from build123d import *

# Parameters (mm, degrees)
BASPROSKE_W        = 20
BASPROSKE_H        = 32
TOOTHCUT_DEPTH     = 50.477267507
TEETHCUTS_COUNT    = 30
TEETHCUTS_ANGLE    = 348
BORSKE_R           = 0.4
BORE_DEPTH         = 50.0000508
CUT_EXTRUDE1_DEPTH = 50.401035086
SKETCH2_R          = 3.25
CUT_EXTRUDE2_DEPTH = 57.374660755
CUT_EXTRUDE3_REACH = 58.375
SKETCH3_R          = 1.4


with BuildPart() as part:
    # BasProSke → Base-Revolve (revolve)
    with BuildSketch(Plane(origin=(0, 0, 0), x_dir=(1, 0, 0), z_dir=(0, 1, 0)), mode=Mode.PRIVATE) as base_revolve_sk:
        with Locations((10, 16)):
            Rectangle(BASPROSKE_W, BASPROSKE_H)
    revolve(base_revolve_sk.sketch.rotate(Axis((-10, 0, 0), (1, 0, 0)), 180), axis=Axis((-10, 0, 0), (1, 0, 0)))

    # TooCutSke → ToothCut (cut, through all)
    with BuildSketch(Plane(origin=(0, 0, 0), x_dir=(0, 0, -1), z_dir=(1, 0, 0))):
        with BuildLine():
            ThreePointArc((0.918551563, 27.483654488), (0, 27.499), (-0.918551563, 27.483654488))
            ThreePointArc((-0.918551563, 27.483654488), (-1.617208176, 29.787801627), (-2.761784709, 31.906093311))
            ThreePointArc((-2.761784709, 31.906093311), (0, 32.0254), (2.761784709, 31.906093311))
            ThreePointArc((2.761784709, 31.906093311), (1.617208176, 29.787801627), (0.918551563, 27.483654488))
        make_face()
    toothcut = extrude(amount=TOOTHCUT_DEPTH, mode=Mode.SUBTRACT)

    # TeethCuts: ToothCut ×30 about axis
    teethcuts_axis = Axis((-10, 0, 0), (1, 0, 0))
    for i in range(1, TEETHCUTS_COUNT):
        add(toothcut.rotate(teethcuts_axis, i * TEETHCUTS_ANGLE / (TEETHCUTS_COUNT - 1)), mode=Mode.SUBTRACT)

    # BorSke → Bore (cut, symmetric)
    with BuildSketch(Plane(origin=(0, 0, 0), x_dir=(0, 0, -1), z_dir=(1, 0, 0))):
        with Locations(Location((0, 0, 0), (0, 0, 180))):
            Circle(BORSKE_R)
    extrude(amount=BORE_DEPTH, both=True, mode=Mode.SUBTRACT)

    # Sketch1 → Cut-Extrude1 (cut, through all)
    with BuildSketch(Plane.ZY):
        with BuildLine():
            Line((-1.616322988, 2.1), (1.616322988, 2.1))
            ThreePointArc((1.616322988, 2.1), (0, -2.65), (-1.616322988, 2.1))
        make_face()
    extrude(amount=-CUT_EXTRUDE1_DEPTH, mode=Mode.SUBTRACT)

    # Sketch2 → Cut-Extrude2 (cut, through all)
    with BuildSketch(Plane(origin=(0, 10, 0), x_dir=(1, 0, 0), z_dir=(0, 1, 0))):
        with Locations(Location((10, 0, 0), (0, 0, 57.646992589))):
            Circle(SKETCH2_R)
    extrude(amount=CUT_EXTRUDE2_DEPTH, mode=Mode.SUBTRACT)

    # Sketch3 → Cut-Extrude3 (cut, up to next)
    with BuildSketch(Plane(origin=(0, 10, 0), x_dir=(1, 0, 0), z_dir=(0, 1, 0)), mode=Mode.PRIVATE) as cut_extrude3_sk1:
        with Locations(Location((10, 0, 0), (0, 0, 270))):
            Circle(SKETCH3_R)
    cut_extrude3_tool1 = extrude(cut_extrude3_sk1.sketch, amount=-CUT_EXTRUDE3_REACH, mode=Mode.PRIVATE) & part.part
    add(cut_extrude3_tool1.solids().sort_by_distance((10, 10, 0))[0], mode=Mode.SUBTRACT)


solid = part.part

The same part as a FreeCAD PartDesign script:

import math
import FreeCAD as App
import Part
import Sketcher
from FreeCAD import Vector
Q = App.Units.Quantity

doc = App.newDocument("Part")
body = doc.addObject("PartDesign::Body", "Body")

# Sketch on XZ plane
sketch1 = body.newObject("Sketcher::SketchObject", "Sketch")
sketch1.AttachmentSupport = (doc.getObject("XZ_Plane"), [""])
sketch1.MapMode = "FlatFace"
sketch1.addGeometry([
    Part.LineSegment(Vector(0, -32, 0), Vector(0, 0, 0)),
    Part.LineSegment(Vector(0, 0, 0), Vector(20, 0, 0)),
    Part.LineSegment(Vector(20, 0, 0), Vector(20, -32, 0)),
    Part.LineSegment(Vector(20, -32, 0), Vector(0, -32, 0)),
], False)
sketch1.addConstraint([
    Sketcher.Constraint("Coincident", 0, 2, 1, 1),
    Sketcher.Constraint("Coincident", 1, 2, 2, 1),
    Sketcher.Constraint("Coincident", 2, 2, 3, 1),
    Sketcher.Constraint("Coincident", 3, 2, 0, 1),
    Sketcher.Constraint("Vertical", 0),
    Sketcher.Constraint("Horizontal", 1),
    Sketcher.Constraint("Vertical", 2),
    Sketcher.Constraint("Horizontal", 3),
    Sketcher.Constraint("Coincident", 0, 2, -1, 1),
    Sketcher.Constraint("DistanceX", 1, 1, 1, 2, Q("20 mm")),
    Sketcher.Constraint("DistanceY", 0, 1, 0, 2, Q("32 mm")),
])
revolution = body.newObject("PartDesign::Revolution", "Revolution")
revolution.Profile = sketch1
revolution.ReferenceAxis = (sketch1, ["H_Axis"])
revolution.Angle = 360

# Sketch on YZ plane
sketch2 = body.newObject("Sketcher::SketchObject", "Sketch001")
sketch2.AttachmentSupport = (doc.getObject("YZ_Plane"), [""])
sketch2.MapMode = "FlatFace"
sketch2.addGeometry([
    Part.ArcOfCircle(Part.Circle(Vector(0, 0, 0), Vector(0, 0, 1), 27.5), math.radians(-1.91), math.radians(1.91)),
    Part.ArcOfCircle(Part.Circle(Vector(25.2, -12.7, 0), Vector(0, 0, 1), 12), math.radians(56), math.radians(79)),
    Part.ArcOfCircle(Part.Circle(Vector(0, 0, 0), Vector(0, 0, 1), 32), math.radians(-4.95), math.radians(4.95)),
    Part.ArcOfCircle(Part.Circle(Vector(25.2, 12.7, 0), Vector(0, 0, 1), 12), math.radians(-79), math.radians(-56)),
], False)
sketch2.addConstraint([
    Sketcher.Constraint("Coincident", 0, 1, 1, 2),
    Sketcher.Constraint("Coincident", 1, 1, 2, 1),
    Sketcher.Constraint("Coincident", 2, 2, 3, 2),
    Sketcher.Constraint("Coincident", 3, 1, 0, 2),
    Sketcher.Constraint("Coincident", 0, 3, -1, 1),
    Sketcher.Constraint("Coincident", 2, 3, -1, 1),
    Sketcher.Constraint("Equal", 1, 3),
    Sketcher.Constraint("Symmetric", 1, 3, 3, 3, -1),
    Sketcher.Constraint("Radius", 1, Q("12 mm")),
    Sketcher.Constraint("Radius", 0, Q("27.499 mm")),
    Sketcher.Constraint("Radius", 2, Q("32.0254 mm")),
    Sketcher.Constraint("DistanceY", 1, 3, -1, 1, Q("12.693642 mm")),
    Sketcher.Constraint("DistanceY", 0, 1, -1, 1, Q("0.918552 mm")),
])
pocket1 = body.newObject("PartDesign::Pocket", "Pocket")
pocket1.Profile = sketch2
pocket1.Type = "ThroughAll"
pocket1.Reversed = True
doc.recompute()

polarpattern = body.newObject("PartDesign::PolarPattern", "PolarPattern")
polarpattern.Originals = [pocket1]
polarpattern.Axis = (doc.getObject("X_Axis"), [""])
polarpattern.Angle = 360
polarpattern.Occurrences = 30
body.Tip = polarpattern

# Sketch on YZ plane
sketch3 = body.newObject("Sketcher::SketchObject", "Sketch002")
sketch3.AttachmentSupport = (doc.getObject("YZ_Plane"), [""])
sketch3.MapMode = "FlatFace"
sketch3.addGeometry(Part.Circle(Vector(0, 0, 0), Vector(0, 0, 1), 0.4), False)
sketch3.addConstraint([
    Sketcher.Constraint("Coincident", 0, 3, -1, 1),
    Sketcher.Constraint("Diameter", 0, Q("0.8 mm")),
])
pocket2 = body.newObject("PartDesign::Pocket", "Pocket001")
pocket2.Profile = sketch3
pocket2.Length = 100.000102
pocket2.Midplane = True

# Sketch on YZ plane
sketch4 = body.newObject("Sketcher::SketchObject", "Sketch003")
sketch4.AttachmentSupport = (doc.getObject("YZ_Plane"), [""])
sketch4.MapMode = "FlatFace"
sketch4.addGeometry([
    Part.LineSegment(Vector(2.1, 1.6, 0), Vector(2.1, -1.6, 0)),
    Part.ArcOfCircle(Part.Circle(Vector(0, 0, 0), Vector(0, 0, 1), 2.6), math.radians(38), math.radians(322)),
], False)
sketch4.addConstraint([
    Sketcher.Constraint("Coincident", 0, 1, 1, 1),
    Sketcher.Constraint("Coincident", 1, 2, 0, 2),
    Sketcher.Constraint("Vertical", 0),
    Sketcher.Constraint("Coincident", 1, 3, -1, 1),
    Sketcher.Constraint("Radius", 1, Q("2.65 mm")),
    Sketcher.Constraint("DistanceX", -1, 1, 0, 1, Q("2.1 mm")),
])
pocket3 = body.newObject("PartDesign::Pocket", "Pocket002")
pocket3.Profile = sketch4
pocket3.Type = "ThroughAll"
pocket3.Reversed = True

# Sketch on XZ plane
sketch5 = body.newObject("Sketcher::SketchObject", "Sketch004")
sketch5.AttachmentSupport = (doc.getObject("XZ_Plane"), [""])
sketch5.MapMode = "FlatFace"
sketch5.AttachmentOffset = App.Placement(Vector(0, 0, -10), App.Rotation())
sketch5.addGeometry(Part.Circle(Vector(10, 0, 0), Vector(0, 0, 1), 3.2), False)
sketch5.addConstraint([
    Sketcher.Constraint("PointOnObject", 0, 3, -1),
    Sketcher.Constraint("Diameter", 0, Q("6.5 mm")),
    Sketcher.Constraint("DistanceX", -1, 1, 0, 3, Q("10 mm")),
])
pocket4 = body.newObject("PartDesign::Pocket", "Pocket003")
pocket4.Profile = sketch5
pocket4.Type = "ThroughAll"

# Sketch on XZ plane
sketch6 = body.newObject("Sketcher::SketchObject", "Sketch005")
sketch6.AttachmentSupport = (doc.getObject("XZ_Plane"), [""])
sketch6.MapMode = "FlatFace"
sketch6.AttachmentOffset = App.Placement(Vector(0, 0, -10), App.Rotation())
sketch6.addGeometry(Part.Circle(Vector(10, 0, 0), Vector(0, 0, 1), 1.4), False)
sketch6.addConstraint([
    Sketcher.Constraint("PointOnObject", 0, 3, -1),
    Sketcher.Constraint("Diameter", 0, Q("2.8 mm")),
    Sketcher.Constraint("DistanceX", -1, 1, 0, 3, Q("10 mm")),
])
pocket5 = body.newObject("PartDesign::Pocket", "Pocket004")
pocket5.Profile = sketch6
pocket5.Type = "UpToFirst"
pocket5.Reversed = True

doc.recompute()
